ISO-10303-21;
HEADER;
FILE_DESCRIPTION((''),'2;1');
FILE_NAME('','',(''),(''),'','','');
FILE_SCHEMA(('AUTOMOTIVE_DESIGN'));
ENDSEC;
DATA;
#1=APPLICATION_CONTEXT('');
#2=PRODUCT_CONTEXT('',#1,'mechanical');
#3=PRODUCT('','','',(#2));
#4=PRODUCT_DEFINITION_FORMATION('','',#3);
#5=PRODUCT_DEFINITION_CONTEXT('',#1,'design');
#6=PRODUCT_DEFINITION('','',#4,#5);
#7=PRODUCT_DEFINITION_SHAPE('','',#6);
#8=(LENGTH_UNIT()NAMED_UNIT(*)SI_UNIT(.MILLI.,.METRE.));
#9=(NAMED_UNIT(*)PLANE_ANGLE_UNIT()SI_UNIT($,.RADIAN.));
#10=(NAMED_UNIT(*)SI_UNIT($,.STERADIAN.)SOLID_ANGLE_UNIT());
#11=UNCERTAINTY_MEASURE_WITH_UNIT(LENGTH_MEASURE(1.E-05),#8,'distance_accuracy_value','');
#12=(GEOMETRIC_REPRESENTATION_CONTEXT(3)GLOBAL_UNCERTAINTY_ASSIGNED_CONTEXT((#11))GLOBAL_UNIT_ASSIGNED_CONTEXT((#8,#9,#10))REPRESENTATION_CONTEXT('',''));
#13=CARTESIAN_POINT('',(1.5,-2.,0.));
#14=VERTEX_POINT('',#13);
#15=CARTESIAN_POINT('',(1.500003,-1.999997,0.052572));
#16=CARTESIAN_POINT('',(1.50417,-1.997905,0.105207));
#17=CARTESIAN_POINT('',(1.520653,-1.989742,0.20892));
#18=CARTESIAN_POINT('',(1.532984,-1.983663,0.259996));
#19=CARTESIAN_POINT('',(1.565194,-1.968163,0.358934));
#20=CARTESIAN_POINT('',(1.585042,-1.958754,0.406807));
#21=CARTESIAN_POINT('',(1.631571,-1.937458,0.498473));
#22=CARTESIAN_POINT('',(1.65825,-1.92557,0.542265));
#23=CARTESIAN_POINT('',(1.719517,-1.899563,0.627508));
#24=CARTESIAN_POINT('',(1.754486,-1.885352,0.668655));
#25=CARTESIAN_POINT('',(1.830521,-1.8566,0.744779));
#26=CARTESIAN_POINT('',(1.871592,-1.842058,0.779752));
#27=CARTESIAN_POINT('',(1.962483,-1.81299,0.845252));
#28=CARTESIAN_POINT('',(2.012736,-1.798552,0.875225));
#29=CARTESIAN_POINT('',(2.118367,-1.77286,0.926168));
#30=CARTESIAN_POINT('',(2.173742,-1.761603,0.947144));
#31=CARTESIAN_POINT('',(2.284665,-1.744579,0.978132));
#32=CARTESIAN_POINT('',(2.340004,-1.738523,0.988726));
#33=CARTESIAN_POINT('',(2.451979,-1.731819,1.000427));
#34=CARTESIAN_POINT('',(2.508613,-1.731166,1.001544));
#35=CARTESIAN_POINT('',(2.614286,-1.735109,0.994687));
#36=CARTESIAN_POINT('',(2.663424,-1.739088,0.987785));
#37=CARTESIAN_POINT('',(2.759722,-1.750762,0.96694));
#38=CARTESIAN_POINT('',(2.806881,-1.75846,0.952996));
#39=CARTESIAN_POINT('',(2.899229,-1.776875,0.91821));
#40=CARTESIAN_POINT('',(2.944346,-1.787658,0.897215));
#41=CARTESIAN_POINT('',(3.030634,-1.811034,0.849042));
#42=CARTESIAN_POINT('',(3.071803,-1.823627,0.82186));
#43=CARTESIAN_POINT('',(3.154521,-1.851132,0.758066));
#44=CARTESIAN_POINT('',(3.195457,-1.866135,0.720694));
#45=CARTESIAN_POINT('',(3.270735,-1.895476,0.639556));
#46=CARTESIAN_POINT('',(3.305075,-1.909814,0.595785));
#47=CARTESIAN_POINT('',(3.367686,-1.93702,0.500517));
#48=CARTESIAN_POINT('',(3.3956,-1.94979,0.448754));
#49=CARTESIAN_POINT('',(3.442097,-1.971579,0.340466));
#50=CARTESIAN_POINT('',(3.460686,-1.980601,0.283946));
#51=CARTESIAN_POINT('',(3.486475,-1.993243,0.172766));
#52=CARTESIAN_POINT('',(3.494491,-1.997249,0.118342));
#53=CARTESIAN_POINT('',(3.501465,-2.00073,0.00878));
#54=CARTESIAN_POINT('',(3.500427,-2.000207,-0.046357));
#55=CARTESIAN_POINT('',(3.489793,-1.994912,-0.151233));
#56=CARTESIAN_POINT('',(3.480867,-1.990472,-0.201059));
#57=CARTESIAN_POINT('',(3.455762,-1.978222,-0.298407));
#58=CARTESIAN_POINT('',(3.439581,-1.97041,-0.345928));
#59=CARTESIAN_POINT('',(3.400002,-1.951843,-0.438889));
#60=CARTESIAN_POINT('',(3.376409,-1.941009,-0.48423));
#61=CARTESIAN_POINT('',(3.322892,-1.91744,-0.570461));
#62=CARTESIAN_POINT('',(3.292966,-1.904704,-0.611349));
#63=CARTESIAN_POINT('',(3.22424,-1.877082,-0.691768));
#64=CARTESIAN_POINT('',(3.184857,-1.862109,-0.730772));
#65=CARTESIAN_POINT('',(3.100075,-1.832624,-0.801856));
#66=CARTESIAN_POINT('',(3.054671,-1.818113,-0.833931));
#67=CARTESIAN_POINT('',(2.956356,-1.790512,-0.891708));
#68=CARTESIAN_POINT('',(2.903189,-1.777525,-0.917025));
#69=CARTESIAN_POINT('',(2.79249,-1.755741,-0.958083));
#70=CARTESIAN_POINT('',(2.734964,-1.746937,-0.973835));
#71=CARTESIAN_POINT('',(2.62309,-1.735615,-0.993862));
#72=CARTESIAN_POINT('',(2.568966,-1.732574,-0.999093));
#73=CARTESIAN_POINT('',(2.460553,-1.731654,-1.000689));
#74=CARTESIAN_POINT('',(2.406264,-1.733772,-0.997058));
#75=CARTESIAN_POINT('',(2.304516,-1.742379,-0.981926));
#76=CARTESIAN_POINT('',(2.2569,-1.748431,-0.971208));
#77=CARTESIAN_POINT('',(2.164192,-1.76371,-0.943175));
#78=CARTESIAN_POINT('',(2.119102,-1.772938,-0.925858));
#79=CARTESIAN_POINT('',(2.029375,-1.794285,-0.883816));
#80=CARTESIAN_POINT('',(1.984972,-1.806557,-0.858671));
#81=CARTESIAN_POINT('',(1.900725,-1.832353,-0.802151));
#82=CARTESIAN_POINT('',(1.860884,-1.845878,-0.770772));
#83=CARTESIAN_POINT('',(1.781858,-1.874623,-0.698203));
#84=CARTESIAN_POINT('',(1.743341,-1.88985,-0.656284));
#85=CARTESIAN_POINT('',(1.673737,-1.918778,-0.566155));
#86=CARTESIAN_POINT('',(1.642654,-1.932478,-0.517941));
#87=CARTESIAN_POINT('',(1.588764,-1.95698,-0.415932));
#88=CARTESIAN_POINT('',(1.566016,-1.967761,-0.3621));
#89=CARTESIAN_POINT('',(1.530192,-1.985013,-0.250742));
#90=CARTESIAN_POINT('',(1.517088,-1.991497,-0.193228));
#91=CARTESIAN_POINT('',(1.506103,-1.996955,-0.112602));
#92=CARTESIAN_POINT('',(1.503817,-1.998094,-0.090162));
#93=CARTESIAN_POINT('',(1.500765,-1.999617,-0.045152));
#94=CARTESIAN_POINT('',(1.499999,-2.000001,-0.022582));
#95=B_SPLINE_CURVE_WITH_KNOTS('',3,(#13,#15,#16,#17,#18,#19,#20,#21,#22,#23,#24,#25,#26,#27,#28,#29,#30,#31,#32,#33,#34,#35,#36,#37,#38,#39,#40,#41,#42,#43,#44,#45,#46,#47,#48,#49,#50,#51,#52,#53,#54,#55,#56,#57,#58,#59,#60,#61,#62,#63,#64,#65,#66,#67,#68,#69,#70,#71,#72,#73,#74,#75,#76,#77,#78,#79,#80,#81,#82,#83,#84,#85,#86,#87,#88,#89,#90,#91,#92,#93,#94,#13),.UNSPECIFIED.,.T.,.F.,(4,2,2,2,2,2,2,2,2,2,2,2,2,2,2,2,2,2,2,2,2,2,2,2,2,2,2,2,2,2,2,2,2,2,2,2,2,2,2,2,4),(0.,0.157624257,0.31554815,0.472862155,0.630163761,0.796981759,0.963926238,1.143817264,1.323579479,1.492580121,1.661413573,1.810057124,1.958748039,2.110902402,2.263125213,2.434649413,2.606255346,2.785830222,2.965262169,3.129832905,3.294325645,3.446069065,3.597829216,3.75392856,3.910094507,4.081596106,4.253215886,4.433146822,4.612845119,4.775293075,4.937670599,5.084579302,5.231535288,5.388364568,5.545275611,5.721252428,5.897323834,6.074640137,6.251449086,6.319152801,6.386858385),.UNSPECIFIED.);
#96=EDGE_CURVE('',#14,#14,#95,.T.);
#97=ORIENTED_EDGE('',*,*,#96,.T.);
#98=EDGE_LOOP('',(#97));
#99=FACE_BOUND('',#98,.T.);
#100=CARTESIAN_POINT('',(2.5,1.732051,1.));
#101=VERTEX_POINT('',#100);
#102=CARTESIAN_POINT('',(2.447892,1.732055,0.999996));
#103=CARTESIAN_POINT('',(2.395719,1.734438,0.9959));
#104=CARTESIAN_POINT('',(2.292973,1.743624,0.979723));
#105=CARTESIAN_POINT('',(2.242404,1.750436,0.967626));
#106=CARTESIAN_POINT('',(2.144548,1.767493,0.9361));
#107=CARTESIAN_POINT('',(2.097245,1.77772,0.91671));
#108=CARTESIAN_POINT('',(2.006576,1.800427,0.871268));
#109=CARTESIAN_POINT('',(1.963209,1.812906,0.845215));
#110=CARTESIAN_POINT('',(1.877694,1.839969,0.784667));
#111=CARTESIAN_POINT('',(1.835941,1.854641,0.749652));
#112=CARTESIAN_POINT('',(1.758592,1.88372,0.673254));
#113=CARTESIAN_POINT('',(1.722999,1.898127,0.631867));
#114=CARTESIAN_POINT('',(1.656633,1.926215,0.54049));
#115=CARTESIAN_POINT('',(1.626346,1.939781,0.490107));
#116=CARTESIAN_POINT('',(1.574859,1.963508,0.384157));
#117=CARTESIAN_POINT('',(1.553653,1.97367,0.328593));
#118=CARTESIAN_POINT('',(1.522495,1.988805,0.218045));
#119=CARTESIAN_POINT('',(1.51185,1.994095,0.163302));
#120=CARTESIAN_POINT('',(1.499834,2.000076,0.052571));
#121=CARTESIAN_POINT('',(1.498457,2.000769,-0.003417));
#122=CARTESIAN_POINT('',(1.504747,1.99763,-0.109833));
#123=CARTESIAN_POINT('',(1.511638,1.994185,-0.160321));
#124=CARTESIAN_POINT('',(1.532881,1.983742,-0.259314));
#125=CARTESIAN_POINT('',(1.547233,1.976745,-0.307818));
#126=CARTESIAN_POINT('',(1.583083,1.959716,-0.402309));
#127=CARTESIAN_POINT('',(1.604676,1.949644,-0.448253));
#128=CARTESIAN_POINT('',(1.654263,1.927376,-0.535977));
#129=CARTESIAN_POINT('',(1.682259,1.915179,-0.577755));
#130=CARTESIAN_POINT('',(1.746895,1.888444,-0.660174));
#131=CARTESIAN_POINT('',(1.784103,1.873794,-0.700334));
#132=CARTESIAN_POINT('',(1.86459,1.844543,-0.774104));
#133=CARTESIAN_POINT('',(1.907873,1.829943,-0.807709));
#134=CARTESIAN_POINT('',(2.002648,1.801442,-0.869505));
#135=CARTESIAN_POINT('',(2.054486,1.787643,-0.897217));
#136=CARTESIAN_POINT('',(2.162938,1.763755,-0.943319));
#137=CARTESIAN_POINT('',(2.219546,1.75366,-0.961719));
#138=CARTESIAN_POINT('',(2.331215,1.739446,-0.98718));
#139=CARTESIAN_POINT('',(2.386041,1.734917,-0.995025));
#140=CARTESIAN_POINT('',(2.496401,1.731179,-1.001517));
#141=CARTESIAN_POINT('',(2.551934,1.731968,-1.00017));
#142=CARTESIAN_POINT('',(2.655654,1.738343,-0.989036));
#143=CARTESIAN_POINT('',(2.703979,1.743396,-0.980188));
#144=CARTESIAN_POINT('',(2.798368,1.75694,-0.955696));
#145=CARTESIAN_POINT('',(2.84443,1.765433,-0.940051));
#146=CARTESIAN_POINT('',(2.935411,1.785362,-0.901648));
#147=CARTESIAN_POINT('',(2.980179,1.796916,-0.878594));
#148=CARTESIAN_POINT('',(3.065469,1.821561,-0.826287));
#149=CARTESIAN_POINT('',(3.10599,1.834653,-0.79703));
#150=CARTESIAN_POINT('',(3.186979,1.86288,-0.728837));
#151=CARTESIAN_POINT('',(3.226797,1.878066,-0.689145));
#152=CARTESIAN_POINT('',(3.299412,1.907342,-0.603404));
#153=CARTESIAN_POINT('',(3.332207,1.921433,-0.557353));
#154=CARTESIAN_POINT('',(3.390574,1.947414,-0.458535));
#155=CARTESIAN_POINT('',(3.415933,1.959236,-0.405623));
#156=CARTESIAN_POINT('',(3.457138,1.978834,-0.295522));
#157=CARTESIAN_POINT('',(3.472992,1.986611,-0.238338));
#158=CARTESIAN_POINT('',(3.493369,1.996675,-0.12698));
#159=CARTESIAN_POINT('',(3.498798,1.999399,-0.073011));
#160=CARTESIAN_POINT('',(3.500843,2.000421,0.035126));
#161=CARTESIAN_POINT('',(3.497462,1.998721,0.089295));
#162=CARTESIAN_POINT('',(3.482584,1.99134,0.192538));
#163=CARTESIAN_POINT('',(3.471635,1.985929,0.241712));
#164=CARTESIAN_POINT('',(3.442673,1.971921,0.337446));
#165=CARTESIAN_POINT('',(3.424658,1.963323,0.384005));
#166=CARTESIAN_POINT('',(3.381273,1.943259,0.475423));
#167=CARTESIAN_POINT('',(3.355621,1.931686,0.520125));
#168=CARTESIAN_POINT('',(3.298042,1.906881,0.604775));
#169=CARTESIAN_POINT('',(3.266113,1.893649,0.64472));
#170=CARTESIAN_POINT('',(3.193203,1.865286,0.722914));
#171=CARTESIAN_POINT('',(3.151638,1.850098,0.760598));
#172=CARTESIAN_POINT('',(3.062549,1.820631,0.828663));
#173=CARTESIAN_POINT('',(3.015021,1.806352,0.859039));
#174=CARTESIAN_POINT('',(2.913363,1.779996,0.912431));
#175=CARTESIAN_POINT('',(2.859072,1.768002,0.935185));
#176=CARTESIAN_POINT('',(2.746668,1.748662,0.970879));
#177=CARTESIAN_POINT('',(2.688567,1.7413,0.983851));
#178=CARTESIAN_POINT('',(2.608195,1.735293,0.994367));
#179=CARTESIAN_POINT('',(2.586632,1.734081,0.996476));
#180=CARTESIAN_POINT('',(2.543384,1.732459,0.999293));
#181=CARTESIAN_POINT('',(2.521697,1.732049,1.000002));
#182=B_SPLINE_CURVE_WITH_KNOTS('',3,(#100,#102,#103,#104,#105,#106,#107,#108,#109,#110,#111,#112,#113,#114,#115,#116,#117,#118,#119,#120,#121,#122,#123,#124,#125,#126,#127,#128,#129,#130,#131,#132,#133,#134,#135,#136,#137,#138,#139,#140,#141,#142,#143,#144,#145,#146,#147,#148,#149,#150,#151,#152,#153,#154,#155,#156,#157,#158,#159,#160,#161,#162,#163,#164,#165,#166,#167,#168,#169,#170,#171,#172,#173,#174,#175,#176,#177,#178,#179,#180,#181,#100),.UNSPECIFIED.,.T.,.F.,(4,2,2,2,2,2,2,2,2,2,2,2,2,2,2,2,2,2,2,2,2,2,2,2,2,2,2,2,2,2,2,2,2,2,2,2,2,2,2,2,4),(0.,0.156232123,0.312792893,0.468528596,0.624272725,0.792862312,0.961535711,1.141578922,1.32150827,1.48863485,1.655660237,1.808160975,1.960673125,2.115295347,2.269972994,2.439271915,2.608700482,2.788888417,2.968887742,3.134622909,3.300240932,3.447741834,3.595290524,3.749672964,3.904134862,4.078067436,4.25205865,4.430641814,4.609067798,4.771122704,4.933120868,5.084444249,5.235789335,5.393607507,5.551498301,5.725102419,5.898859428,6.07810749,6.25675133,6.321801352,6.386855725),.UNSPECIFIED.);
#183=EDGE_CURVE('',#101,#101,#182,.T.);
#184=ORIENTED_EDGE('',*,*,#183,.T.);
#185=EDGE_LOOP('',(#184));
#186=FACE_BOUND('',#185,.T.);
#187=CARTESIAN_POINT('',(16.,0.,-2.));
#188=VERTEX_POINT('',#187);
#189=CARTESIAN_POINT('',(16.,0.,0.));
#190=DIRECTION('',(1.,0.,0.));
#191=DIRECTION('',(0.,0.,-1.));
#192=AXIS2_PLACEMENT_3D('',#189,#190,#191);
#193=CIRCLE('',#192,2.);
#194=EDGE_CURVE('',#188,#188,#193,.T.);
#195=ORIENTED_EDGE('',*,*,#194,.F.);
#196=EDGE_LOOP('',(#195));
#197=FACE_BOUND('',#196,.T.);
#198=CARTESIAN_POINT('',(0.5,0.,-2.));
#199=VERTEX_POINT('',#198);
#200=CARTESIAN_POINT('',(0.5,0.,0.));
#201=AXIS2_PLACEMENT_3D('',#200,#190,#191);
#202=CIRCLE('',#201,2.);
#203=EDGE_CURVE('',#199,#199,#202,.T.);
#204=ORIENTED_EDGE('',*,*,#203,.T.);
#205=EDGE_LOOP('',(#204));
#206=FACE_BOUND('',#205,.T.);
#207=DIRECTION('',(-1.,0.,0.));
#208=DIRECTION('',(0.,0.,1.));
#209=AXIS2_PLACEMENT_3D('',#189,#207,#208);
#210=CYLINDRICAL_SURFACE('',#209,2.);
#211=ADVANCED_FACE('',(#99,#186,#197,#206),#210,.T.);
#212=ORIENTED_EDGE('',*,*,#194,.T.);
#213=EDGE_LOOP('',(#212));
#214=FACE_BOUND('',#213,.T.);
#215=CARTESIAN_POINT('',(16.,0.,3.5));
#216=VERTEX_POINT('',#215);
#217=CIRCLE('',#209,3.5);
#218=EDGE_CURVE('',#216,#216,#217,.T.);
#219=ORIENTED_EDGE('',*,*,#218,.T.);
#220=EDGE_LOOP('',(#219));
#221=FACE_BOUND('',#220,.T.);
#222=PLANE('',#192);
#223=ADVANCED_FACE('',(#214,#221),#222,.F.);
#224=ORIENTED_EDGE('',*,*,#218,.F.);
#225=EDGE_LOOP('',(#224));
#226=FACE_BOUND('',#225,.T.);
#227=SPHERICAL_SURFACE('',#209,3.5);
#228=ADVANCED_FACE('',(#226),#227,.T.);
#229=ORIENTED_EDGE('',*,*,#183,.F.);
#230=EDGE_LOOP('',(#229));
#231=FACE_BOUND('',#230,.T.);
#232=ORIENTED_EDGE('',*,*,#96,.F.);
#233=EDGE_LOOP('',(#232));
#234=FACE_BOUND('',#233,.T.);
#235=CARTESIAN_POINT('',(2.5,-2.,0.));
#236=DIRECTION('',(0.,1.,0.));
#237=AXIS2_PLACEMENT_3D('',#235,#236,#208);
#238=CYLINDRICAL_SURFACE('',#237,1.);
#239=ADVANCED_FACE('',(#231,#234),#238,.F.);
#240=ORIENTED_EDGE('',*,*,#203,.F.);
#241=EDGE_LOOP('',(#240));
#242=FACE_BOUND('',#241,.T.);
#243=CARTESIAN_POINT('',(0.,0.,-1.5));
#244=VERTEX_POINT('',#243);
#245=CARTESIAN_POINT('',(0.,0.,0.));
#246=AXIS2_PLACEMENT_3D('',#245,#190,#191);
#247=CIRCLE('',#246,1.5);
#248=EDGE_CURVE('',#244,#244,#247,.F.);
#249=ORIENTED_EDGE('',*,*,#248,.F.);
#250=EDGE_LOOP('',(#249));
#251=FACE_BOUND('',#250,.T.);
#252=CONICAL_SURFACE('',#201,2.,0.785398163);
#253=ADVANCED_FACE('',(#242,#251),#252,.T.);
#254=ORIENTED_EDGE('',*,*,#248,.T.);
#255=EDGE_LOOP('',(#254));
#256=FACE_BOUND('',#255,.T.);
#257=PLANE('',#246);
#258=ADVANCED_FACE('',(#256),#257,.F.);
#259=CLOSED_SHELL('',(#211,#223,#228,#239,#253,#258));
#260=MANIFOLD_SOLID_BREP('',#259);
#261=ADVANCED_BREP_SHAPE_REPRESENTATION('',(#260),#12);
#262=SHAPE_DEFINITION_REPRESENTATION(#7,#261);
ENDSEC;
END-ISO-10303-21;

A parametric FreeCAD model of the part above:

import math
import FreeCAD as App
import Part
import Sketcher

V = App.Vector
Q = App.Units.Quantity


def edges_at(feature, points):
    """Names of the edges that pass closest to the given points."""
    edges = feature.Shape.Edges
    near = lambda p: min(range(len(edges)), key=lambda i: edges[i].distToShape(Part.Vertex(*p))[0])
    return sorted({f"Edge{near(p) + 1}" for p in points})

doc = App.newDocument("Part")
params = doc.addObject("Spreadsheet::Sheet", "Params")
for row, (alias, value) in enumerate([
    ("sketch1_diameter", "4 mm"),
    ("pad1_length", "16 mm"),
    ("chamfer_size", "0.5 mm"),
    ("sketch2_diameter", "2 mm"),
    ("sketch3_radius", "3.5 mm"),
    ("revolution_angle", "360 deg"),
], start=1):
    params.set(f"A{row}", alias)
    params.set(f"B{row}", "=" + value)
    params.setAlias(f"B{row}", alias)

body = doc.addObject("PartDesign::Body", "Body")

sketch1 = body.newObject("Sketcher::SketchObject", "Sketch")
sketch1.AttachmentSupport = (doc.getObject("YZ_Plane"), [""])
sketch1.MapMode = "FlatFace"
sketch1.addGeometry(Part.Circle(V(0, 0, 0), V(0, 0, 1), 2), False)
sketch1.addConstraint([
    Sketcher.Constraint("Coincident", 0, 3, -1, 1),
    Sketcher.Constraint("Diameter", 0, Q("4 mm")),
])
sketch1.setExpression("Constraints[1]", "Params.sketch1_diameter")
pad1 = body.newObject("PartDesign::Pad", "Pad")
pad1.Profile = sketch1
pad1.setExpression("Length", "Params.pad1_length")
doc.recompute()

chamfer = body.newObject("PartDesign::Chamfer", "Chamfer")
chamfer.Base = (pad1, edges_at(pad1, [(0, 0, 2)]))
chamfer.setExpression("Size", "Params.chamfer_size")

sketch2 = body.newObject("Sketcher::SketchObject", "Sketch001")
sketch2.AttachmentSupport = (doc.getObject("XZ_Plane"), [""])
sketch2.MapMode = "FlatFace"
sketch2.addGeometry(Part.Circle(V(2.5, 0, 0), V(0, 0, 1), 1), False)
sketch2.addConstraint([
    Sketcher.Constraint("PointOnObject", 0, 3, -1),
    Sketcher.Constraint("Diameter", 0, Q("2 mm")),
    Sketcher.Constraint("DistanceX", -1, 1, 0, 3, Q("2.5 mm")),
])
sketch2.setExpression("Constraints[1]", "Params.sketch2_diameter")
pocket1 = body.newObject("PartDesign::Pocket", "Pocket")
pocket1.Profile = sketch2
pocket1.Type = "ThroughAll"
pocket1.Midplane = True

sketch3 = body.newObject("Sketcher::SketchObject", "Sketch002")
sketch3.AttachmentSupport = (doc.getObject("XZ_Plane"), [""])
sketch3.MapMode = "FlatFace"
sketch3.addGeometry([
    Part.LineSegment(V(16, -3.5, 0), V(16, 0, 0)),
    Part.LineSegment(V(16, 0, 0), V(19.5, 0, 0)),
    Part.ArcOfCircle(Part.Circle(V(16, 0, 0), V(0, 0, 1), 3.5), math.radians(-90), math.radians(0)),
], False)
sketch3.addConstraint([
    Sketcher.Constraint("Coincident", 0, 2, 1, 1),
    Sketcher.Constraint("Coincident", 1, 2, 2, 2),
    Sketcher.Constraint("Coincident", 2, 1, 0, 1),
    Sketcher.Constraint("Vertical", 0),
    Sketcher.Constraint("Horizontal", 1),
    Sketcher.Constraint("Coincident", 0, 2, 2, 3),
    Sketcher.Constraint("PointOnObject", 2, 3, -1),
    Sketcher.Constraint("Radius", 2, Q("3.5 mm")),
    Sketcher.Constraint("DistanceX", -1, 1, 2, 3, Q("16 mm")),
])
sketch3.setExpression("Constraints[7]", "Params.sketch3_radius")
revolution = body.newObject("PartDesign::Revolution", "Revolution")
revolution.Profile = sketch3
revolution.ReferenceAxis = (sketch3, ["H_Axis"])
revolution.setExpression("Angle", "Params.revolution_angle")

doc.recompute()
